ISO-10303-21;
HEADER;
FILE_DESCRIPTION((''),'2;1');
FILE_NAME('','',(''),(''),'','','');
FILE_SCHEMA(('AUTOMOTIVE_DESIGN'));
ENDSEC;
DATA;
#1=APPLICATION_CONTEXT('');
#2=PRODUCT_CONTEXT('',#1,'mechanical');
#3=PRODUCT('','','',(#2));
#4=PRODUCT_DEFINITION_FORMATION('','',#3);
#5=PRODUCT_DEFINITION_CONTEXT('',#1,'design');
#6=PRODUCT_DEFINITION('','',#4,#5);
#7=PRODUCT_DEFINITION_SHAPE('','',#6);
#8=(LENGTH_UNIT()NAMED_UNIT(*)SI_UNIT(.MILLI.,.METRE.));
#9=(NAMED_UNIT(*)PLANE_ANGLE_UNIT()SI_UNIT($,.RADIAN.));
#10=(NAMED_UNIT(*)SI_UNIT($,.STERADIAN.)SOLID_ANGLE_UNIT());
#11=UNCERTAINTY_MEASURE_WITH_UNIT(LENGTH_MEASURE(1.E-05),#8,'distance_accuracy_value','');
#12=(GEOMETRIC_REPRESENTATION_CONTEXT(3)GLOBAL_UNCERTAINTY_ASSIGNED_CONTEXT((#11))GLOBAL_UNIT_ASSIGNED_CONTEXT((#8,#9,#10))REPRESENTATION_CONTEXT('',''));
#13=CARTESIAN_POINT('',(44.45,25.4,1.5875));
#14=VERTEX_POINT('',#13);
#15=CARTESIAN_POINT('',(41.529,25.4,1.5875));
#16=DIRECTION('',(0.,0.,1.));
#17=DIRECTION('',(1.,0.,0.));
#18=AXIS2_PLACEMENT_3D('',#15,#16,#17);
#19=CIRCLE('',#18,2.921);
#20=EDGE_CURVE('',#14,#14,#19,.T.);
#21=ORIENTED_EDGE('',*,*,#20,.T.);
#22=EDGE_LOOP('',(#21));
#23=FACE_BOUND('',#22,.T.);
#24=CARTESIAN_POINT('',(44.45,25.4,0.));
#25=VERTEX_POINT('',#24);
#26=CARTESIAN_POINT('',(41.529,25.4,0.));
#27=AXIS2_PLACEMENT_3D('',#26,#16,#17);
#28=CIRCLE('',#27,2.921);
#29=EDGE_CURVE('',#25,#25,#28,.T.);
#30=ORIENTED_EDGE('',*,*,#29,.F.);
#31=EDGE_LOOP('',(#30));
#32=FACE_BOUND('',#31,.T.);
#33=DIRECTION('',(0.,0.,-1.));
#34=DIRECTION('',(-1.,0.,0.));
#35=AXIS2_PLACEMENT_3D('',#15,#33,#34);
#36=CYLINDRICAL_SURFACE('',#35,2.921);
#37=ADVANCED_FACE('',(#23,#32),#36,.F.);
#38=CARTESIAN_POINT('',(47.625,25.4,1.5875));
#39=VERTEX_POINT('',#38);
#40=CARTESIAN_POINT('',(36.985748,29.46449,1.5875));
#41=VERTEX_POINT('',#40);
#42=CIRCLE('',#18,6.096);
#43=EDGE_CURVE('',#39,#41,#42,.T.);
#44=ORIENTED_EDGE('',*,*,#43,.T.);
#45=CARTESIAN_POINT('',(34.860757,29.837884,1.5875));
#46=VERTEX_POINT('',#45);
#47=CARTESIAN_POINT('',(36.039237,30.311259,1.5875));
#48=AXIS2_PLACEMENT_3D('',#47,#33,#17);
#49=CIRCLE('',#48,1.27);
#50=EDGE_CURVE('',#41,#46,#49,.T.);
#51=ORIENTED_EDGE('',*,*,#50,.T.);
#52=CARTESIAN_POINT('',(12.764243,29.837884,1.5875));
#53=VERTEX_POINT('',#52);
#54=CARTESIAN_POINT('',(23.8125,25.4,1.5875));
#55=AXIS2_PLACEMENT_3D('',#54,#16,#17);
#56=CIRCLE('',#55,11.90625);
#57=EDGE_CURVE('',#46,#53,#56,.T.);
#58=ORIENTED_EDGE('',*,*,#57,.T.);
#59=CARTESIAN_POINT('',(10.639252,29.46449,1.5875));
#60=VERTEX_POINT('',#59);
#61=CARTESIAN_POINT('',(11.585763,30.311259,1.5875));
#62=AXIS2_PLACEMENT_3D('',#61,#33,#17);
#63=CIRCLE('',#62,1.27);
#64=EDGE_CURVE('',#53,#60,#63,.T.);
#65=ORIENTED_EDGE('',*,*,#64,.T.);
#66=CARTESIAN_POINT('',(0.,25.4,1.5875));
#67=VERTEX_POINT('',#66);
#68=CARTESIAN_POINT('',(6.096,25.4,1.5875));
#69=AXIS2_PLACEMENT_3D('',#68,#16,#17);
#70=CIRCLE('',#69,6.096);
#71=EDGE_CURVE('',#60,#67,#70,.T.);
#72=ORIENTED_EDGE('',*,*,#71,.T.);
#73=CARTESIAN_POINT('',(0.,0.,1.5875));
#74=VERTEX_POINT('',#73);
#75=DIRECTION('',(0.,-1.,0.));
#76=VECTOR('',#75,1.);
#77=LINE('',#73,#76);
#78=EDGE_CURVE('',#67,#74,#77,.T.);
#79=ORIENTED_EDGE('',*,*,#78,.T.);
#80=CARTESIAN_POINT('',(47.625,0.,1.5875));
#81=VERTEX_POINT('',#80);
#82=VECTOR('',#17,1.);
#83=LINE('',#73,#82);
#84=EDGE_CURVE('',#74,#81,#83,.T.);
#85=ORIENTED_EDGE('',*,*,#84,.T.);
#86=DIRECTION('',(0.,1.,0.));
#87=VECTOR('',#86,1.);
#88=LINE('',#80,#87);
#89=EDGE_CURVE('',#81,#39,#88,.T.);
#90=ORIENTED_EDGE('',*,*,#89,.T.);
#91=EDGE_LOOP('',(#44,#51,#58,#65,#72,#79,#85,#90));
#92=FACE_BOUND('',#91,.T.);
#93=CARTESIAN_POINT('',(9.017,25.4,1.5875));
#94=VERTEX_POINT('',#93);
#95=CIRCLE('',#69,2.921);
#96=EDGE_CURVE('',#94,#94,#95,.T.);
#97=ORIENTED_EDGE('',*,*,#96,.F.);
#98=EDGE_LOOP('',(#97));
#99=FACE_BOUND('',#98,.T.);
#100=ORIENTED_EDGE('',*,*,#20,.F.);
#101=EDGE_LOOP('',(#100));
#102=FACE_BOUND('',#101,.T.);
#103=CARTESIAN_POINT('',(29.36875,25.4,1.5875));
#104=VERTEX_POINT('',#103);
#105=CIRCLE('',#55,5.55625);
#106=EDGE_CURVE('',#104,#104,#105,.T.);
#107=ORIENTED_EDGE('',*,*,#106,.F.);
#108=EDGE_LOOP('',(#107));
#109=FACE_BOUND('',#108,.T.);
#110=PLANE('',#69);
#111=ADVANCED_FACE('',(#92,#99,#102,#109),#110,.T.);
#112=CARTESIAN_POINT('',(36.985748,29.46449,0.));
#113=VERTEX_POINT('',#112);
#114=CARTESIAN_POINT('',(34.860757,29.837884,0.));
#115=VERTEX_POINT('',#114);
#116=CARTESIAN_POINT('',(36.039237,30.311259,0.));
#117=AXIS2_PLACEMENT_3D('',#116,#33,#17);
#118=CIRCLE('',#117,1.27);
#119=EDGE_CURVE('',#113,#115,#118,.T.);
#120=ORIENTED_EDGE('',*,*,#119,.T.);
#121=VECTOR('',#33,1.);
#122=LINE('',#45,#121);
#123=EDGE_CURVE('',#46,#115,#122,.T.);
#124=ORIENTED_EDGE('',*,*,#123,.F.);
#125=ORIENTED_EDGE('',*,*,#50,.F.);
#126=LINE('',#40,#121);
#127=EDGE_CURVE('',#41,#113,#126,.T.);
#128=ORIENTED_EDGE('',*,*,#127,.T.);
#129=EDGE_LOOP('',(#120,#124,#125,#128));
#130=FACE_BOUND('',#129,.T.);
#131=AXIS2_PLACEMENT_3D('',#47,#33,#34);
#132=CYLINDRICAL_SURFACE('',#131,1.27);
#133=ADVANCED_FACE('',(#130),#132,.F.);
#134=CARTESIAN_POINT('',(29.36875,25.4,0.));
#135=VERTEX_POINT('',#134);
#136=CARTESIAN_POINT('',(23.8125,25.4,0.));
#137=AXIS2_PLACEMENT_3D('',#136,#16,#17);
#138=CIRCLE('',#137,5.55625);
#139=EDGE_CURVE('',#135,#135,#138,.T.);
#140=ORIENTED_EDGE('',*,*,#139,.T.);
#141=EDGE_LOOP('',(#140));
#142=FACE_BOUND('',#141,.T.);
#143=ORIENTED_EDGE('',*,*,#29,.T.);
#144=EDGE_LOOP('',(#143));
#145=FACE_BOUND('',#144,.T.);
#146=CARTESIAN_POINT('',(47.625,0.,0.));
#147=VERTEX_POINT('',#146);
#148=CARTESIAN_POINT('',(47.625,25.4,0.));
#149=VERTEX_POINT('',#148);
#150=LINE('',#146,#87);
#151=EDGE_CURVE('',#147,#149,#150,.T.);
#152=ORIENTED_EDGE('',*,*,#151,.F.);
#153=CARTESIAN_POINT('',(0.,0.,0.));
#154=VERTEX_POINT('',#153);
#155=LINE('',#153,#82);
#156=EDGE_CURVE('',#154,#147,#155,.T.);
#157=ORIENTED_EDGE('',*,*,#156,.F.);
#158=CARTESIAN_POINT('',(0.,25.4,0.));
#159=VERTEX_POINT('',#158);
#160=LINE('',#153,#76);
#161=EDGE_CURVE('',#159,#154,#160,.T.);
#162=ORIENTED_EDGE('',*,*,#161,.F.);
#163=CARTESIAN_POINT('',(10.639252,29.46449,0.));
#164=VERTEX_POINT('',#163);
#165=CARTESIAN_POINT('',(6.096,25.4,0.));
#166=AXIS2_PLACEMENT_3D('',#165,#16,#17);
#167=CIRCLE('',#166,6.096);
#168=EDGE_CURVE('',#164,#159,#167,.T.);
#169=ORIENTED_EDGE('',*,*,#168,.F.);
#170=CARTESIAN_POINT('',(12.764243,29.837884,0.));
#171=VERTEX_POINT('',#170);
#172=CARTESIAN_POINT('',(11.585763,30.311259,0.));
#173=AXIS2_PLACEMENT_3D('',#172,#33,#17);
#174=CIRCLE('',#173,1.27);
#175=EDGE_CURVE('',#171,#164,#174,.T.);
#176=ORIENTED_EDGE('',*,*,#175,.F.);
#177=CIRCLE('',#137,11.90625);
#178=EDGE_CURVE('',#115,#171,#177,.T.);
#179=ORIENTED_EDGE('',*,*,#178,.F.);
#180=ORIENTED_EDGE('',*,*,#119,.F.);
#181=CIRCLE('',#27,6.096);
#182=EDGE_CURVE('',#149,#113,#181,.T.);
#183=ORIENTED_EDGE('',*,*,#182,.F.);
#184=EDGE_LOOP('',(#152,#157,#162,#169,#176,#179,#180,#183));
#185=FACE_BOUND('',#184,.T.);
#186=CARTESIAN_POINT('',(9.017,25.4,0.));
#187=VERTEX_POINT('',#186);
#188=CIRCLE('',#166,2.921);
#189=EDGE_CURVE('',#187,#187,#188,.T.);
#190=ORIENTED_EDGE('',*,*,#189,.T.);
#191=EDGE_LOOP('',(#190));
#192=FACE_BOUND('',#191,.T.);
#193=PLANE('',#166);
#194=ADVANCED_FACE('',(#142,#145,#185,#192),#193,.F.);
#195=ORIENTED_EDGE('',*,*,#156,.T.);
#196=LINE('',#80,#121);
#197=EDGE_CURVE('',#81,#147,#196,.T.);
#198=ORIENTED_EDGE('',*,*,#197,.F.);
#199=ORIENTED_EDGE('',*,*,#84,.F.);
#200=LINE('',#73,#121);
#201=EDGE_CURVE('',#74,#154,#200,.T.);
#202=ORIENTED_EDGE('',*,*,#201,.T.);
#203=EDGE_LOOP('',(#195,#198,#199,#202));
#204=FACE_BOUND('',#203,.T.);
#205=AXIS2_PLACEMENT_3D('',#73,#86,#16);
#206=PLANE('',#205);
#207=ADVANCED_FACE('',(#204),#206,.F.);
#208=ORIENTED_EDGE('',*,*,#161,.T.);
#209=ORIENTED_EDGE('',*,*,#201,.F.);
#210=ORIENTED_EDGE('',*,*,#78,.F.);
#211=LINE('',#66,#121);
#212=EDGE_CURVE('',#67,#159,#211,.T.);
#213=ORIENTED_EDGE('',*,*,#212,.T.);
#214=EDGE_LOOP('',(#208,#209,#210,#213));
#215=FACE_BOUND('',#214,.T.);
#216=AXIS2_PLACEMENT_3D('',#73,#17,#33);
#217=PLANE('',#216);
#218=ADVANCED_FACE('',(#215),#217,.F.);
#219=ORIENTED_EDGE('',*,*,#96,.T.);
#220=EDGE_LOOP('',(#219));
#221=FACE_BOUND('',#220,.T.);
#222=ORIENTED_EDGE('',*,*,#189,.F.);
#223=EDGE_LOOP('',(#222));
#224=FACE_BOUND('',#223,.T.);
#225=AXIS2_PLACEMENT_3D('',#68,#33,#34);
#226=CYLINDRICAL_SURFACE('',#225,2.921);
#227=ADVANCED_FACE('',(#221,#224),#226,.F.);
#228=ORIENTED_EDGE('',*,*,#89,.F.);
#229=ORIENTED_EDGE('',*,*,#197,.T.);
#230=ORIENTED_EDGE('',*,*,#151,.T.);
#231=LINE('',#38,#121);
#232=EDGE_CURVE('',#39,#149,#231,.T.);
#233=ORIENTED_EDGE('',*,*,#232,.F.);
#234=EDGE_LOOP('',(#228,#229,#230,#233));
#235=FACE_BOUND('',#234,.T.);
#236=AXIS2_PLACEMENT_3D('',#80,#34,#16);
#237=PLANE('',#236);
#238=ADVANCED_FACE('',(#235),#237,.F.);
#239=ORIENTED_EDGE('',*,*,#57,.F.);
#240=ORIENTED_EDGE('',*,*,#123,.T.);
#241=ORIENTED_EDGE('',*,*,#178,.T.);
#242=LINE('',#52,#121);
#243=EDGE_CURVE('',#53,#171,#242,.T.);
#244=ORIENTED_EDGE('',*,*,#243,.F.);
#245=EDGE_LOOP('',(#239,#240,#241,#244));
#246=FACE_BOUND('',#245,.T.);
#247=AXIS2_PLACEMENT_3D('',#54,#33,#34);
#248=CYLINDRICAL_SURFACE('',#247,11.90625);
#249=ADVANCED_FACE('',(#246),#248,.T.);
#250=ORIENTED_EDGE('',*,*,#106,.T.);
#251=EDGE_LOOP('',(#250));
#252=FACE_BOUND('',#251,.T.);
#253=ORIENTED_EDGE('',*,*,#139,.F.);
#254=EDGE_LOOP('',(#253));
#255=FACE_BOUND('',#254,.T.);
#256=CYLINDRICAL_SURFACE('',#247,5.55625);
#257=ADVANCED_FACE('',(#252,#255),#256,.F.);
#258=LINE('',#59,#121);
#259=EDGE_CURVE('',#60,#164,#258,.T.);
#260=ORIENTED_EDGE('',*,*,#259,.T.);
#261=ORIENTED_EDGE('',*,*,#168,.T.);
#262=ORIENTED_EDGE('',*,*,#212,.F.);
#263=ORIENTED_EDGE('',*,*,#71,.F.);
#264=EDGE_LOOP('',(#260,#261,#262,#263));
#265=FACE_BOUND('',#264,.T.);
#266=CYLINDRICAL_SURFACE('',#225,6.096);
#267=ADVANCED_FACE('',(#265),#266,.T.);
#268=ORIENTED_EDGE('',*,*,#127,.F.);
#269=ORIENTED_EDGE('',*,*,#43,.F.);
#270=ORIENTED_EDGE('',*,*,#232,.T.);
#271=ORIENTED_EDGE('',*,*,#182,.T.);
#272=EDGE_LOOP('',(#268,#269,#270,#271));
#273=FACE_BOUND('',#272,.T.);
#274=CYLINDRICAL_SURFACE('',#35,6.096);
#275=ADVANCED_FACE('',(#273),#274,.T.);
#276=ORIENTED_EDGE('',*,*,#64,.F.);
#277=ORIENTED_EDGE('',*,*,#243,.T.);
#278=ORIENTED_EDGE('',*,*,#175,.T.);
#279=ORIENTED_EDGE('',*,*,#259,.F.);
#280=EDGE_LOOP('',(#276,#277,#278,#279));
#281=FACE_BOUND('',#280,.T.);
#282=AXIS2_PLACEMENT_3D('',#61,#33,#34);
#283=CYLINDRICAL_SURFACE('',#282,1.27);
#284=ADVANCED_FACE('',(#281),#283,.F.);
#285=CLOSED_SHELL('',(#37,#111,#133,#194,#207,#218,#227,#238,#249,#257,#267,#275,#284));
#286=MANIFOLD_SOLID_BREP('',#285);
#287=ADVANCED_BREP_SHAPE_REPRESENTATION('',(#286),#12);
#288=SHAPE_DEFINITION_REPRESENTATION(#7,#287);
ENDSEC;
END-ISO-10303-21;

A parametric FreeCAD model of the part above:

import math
import FreeCAD as App
import Part
import Sketcher
Q = App.Units.Quantity

doc = App.newDocument("Part")
body = doc.addObject("PartDesign::Body", "Body")

sketch1 = body.newObject("Sketcher::SketchObject", "Sketch")
sketch1.AttachmentSupport = (doc.getObject("XY_Plane"), [""])
sketch1.MapMode = "FlatFace"
sketch1.addGeometry([
    Part.LineSegment(App.Vector(0, 0, 0), App.Vector(47.6, 0, 0)),
    Part.LineSegment(App.Vector(47.6, 0, 0), App.Vector(47.6, 25.4, 0)),
    Part.ArcOfCircle(Part.Circle(App.Vector(41.5, 25.4, 0), App.Vector(0, 0, 1), 6.1), math.radians(0), math.radians(138)),
    Part.ArcOfCircle(Part.Circle(App.Vector(36, 30.3, 0), App.Vector(0, 0, 1), 1.3), math.radians(-158), math.radians(-42)),
    Part.ArcOfCircle(Part.Circle(App.Vector(23.8, 25.4, 0), App.Vector(0, 0, 1), 11.9), math.radians(22), math.radians(158)),
    Part.ArcOfCircle(Part.Circle(App.Vector(11.6, 30.3, 0), App.Vector(0, 0, 1), 1.3), math.radians(-138), math.radians(-22)),
    Part.ArcOfCircle(Part.Circle(App.Vector(6.1, 25.4, 0), App.Vector(0, 0, 1), 6.1), math.radians(42), math.radians(180)),
    Part.LineSegment(App.Vector(0, 25.4, 0), App.Vector(0, 0, 0)),
    Part.Circle(App.Vector(6.1, 25.4, 0), App.Vector(0, 0, 1), 2.9),
    Part.Circle(App.Vector(23.8, 25.4, 0), App.Vector(0, 0, 1), 5.6),
    Part.Circle(App.Vector(41.5, 25.4, 0), App.Vector(0, 0, 1), 2.9),
], False)
sketch1.addConstraint([
    Sketcher.Constraint("Coincident", 0, 2, 1, 1),
    Sketcher.Constraint("Tangent", 1, 2, 2, 1),
    Sketcher.Constraint("Tangent", 2, 2, 3, 2),
    Sketcher.Constraint("Tangent", 3, 1, 4, 1),
    Sketcher.Constraint("Tangent", 4, 2, 5, 2),
    Sketcher.Constraint("Tangent", 5, 1, 6, 1),
    Sketcher.Constraint("Tangent", 6, 2, 7, 1),
    Sketcher.Constraint("Coincident", 7, 2, 0, 1),
    Sketcher.Constraint("Horizontal", 0),
    Sketcher.Constraint("Vertical", 1),
    Sketcher.Constraint("Vertical", 7),
    Sketcher.Constraint("Coincident", 7, 2, -1, 1),
    Sketcher.Constraint("Coincident", 8, 3, 6, 3),
    Sketcher.Constraint("Coincident", 9, 3, 4, 3),
    Sketcher.Constraint("Coincident", 10, 3, 2, 3),
    Sketcher.Constraint("Equal", 3, 5),
    Sketcher.Constraint("Equal", 2, 6),
    Sketcher.Constraint("Equal", 8, 10),
    Sketcher.Constraint("Horizontal", 2, 3, 4, 3),
    Sketcher.Constraint("Horizontal", 3, 3, 5, 3),
    Sketcher.Constraint("Horizontal", 4, 3, 6, 3),
    Sketcher.Constraint("Diameter", 8, Q("0.23 in")),
    Sketcher.Constraint("DistanceY", 1, 1, 1, 2, Q("1 in")),
    Sketcher.Constraint("Radius", 2, Q("0.24 in")),
    Sketcher.Constraint("Radius", 3, Q("0.05 in")),
    Sketcher.Constraint("Diameter", 9, Q("0.4375 in")),
    Sketcher.Constraint("Radius", 4, Q("0.46875 in")),
    Sketcher.Constraint("DistanceX", 0, 1, 0, 2, Q("1.875 in")),
])
pad1 = body.newObject("PartDesign::Pad", "Pad")
pad1.Profile = sketch1
pad1.Length = Q("0.0625 in")

doc.recompute()
